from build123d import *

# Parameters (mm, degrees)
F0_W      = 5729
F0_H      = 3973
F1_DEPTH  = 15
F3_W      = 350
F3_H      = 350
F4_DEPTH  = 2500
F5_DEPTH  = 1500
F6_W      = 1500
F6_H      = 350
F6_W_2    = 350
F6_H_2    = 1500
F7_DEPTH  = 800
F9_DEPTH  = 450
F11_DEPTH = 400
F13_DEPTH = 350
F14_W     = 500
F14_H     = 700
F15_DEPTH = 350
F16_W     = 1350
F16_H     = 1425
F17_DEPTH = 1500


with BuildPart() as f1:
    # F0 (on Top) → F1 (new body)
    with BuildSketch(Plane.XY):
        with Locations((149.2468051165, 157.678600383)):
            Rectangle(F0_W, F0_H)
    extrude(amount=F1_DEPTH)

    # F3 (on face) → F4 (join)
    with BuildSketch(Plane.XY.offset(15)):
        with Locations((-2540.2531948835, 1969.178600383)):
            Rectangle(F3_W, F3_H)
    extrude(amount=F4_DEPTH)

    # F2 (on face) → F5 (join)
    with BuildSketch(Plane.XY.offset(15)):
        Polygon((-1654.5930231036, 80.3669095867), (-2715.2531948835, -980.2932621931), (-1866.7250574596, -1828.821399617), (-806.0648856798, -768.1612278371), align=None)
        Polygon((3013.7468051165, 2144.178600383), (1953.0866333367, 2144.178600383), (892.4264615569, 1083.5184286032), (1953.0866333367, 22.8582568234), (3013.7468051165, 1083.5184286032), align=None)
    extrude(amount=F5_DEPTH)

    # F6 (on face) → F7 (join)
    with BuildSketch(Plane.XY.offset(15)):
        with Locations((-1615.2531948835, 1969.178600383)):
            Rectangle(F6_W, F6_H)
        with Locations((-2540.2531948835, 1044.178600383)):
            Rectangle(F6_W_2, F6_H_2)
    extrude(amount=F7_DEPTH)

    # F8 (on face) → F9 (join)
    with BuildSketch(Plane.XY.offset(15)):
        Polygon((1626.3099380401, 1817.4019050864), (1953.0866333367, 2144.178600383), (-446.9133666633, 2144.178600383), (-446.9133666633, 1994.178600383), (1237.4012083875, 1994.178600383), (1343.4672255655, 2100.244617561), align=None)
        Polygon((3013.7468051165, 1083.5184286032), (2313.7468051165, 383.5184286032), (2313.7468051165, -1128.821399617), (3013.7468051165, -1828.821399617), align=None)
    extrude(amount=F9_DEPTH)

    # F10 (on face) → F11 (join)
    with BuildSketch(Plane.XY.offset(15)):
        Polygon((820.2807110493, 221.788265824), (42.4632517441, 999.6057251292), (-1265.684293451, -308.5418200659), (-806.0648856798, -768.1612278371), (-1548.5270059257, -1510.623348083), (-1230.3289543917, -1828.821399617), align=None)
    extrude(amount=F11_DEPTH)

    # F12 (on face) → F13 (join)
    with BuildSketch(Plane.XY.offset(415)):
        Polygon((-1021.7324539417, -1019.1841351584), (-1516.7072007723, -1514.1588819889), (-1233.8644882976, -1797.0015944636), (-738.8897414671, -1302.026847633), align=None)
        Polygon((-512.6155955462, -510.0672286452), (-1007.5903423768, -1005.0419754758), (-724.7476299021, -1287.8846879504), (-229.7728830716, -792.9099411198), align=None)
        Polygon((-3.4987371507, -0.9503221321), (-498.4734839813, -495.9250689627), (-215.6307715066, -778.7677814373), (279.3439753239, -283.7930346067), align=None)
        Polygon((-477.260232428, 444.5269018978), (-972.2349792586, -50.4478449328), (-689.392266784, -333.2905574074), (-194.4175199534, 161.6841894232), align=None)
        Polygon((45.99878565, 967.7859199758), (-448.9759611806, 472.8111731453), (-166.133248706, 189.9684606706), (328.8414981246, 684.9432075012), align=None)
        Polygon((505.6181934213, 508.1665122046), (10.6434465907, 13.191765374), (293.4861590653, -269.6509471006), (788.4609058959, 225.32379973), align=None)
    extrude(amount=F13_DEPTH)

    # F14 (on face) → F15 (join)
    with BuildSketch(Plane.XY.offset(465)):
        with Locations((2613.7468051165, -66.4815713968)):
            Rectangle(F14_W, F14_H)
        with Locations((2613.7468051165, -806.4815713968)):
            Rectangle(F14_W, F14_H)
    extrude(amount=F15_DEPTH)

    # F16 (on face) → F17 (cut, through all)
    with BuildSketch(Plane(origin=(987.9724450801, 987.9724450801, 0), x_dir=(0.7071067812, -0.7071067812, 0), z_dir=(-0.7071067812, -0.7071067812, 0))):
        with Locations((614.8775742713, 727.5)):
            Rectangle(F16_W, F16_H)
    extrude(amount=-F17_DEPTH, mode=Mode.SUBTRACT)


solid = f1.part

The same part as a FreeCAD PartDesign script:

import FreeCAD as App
import Part
import Sketcher
Q = App.Units.Quantity


def add_polygon(sketch, points):
    """Adds a closed chain of lines whose ends are joined by coincident constraints."""
    first, n = sketch.GeometryCount, len(points)
    for a, b in zip(points, points[1:] + points[:1]):
        sketch.addGeometry(Part.LineSegment(App.Vector(*a, 0), App.Vector(*b, 0)), False)
    for i in range(n):
        sketch.addConstraint(Sketcher.Constraint("Coincident", first + i, 2, first + (i + 1) % n, 1))

doc = App.newDocument("Part")
body = doc.addObject("PartDesign::Body", "Body")

# Sketch on XY plane
sketch1 = body.newObject("Sketcher::SketchObject", "Sketch")
sketch1.AttachmentSupport = (doc.getObject("XY_Plane"), [""])
sketch1.MapMode = "FlatFace"
add_polygon(sketch1, [(-2715, 2144), (-2715, -1829), (3014, -1829), (3014, 2144)])  # lines 0-3
sketch1.addConstraint(Sketcher.Constraint("Vertical", 0))
sketch1.addConstraint(Sketcher.Constraint("Horizontal", 1))
sketch1.addConstraint(Sketcher.Constraint("Vertical", 2))
sketch1.addConstraint(Sketcher.Constraint("Horizontal", 3))
sketch1.addConstraint(Sketcher.Constraint("DistanceX", 1, 1, 1, 2, Q("5729 mm")))
sketch1.addConstraint(Sketcher.Constraint("DistanceY", 0, 2, 0, 1, Q("3973 mm")))
sketch1.addConstraint(Sketcher.Constraint("DistanceY", 0, 2, -1, 1, Q("1828.8214 mm")))
sketch1.addConstraint(Sketcher.Constraint("DistanceX", 0, 2, -1, 1, Q("2715.253195 mm")))
pad1 = body.newObject("PartDesign::Pad", "Pad")
pad1.Profile = sketch1
pad1.Length = 15

# Sketch on XY plane
sketch2 = body.newObject("Sketcher::SketchObject", "Sketch001")
sketch2.AttachmentSupport = (doc.getObject("XY_Plane"), [""])
sketch2.MapMode = "FlatFace"
sketch2.AttachmentOffset = App.Placement(App.Vector(0, 0, 15), App.Rotation())
add_polygon(sketch2, [(-2715, 2144), (-2715, 1794), (-2365, 1794), (-2365, 2144)])  # lines 0-3
sketch2.addConstraint(Sketcher.Constraint("Vertical", 0))
sketch2.addConstraint(Sketcher.Constraint("Horizontal", 1))
sketch2.addConstraint(Sketcher.Constraint("Vertical", 2))
sketch2.addConstraint(Sketcher.Constraint("Horizontal", 3))
sketch2.addConstraint(Sketcher.Constraint("Equal", 3, 0))
sketch2.addConstraint(Sketcher.Constraint("DistanceX", 1, 1, 1, 2, Q("350 mm")))
sketch2.addConstraint(Sketcher.Constraint("DistanceY", -1, 1, 0, 2, Q("1794.1786 mm")))
sketch2.addConstraint(Sketcher.Constraint("DistanceX", 0, 2, -1, 1, Q("2715.253195 mm")))
pad2 = body.newObject("PartDesign::Pad", "Pad001")
pad2.Profile = sketch2
pad2.Length = 2500

# Sketch on XY plane
sketch3 = body.newObject("Sketcher::SketchObject", "Sketch002")
sketch3.AttachmentSupport = (doc.getObject("XY_Plane"), [""])
sketch3.MapMode = "FlatFace"
sketch3.AttachmentOffset = App.Placement(App.Vector(0, 0, 15), App.Rotation())
add_polygon(sketch3, [(-1655, 80), (-2715, -980), (-1867, -1829), (-806, -768)])  # lines 0-3
add_polygon(sketch3, [(3014, 2144), (1953, 2144), (892, 1084), (1953, 23), (3014, 1084)])  # lines 4-8
sketch3.addConstraint(Sketcher.Constraint("Horizontal", 4))
sketch3.addConstraint(Sketcher.Constraint("Vertical", 8))
sketch3.addConstraint(Sketcher.Constraint("Perpendicular", 0, 1))
sketch3.addConstraint(Sketcher.Constraint("Perpendicular", 1, 2))
sketch3.addConstraint(Sketcher.Constraint("Perpendicular", 2, 3))
sketch3.addConstraint(Sketcher.Constraint("Perpendicular", 3, 5))
sketch3.addConstraint(Sketcher.Constraint("Perpendicular", 5, 6))
sketch3.addConstraint(Sketcher.Constraint("Perpendicular", 6, 7))
sketch3.addConstraint(Sketcher.Constraint("Horizontal", 5, 2, 7, 2))
sketch3.addConstraint(Sketcher.Constraint("Vertical", 4, 2, 6, 2))
sketch3.addConstraint(Sketcher.Constraint("Equal", 4, 8))
sketch3.addConstraint(Sketcher.Constraint("Equal", 2, 5))
sketch3.addConstraint(Sketcher.Constraint("Distance", 0, Q("1500 mm")))
sketch3.addConstraint(Sketcher.Constraint("Distance", 1, Q("1200 mm")))
sketch3.addConstraint(Sketcher.Constraint("DistanceY", 1, 2, 4, 2, Q("3973 mm")))
sketch3.addConstraint(Sketcher.Constraint("DistanceY", 1, 2, -1, 1, Q("1828.8214 mm")))
sketch3.addConstraint(Sketcher.Constraint("DistanceX", -1, 1, 5, 2, Q("892.426462 mm")))
sketch3.addConstraint(Sketcher.Constraint("DistanceX", 2, 2, 4, 2, Q("2759.151519 mm")))
pad3 = body.newObject("PartDesign::Pad", "Pad002")
pad3.Profile = sketch3
pad3.Length = 1500

# Sketch on XY plane
sketch4 = body.newObject("Sketcher::SketchObject", "Sketch003")
sketch4.AttachmentSupport = (doc.getObject("XY_Plane"), [""])
sketch4.MapMode = "FlatFace"
sketch4.AttachmentOffset = App.Placement(App.Vector(0, 0, 15), App.Rotation())
add_polygon(sketch4, [(-2365, 2144), (-2365, 1794), (-865, 1794), (-865, 2144)])  # lines 0-3
add_polygon(sketch4, [(-2715, 1794), (-2715, 294), (-2365, 294), (-2365, 1794)])  # lines 4-7
sketch4.addConstraint(Sketcher.Constraint("Vertical", 0))
sketch4.addConstraint(Sketcher.Constraint("Horizontal", 1))
sketch4.addConstraint(Sketcher.Constraint("Vertical", 2))
sketch4.addConstraint(Sketcher.Constraint("Horizontal", 3))
sketch4.addConstraint(Sketcher.Constraint("Vertical", 4))
sketch4.addConstraint(Sketcher.Constraint("Horizontal", 5))
sketch4.addConstraint(Sketcher.Constraint("Vertical", 6))
sketch4.addConstraint(Sketcher.Constraint("Horizontal", 7))
sketch4.addConstraint(Sketcher.Constraint("Coincident", 6, 2, 0, 2))
sketch4.addConstraint(Sketcher.Constraint("Equal", 7, 0))
sketch4.addConstraint(Sketcher.Constraint("Equal", 3, 4))
sketch4.addConstraint(Sketcher.Constraint("DistanceX", 1, 1, 1, 2, Q("1500 mm")))
sketch4.addConstraint(Sketcher.Constraint("DistanceX", 5, 1, 5, 2, Q("350 mm")))
sketch4.addConstraint(Sketcher.Constraint("DistanceY", -1, 1, 0, 2, Q("1794.1786 mm")))
sketch4.addConstraint(Sketcher.Constraint("DistanceX", 0, 2, -1, 1, Q("2365.253195 mm")))
pad4 = body.newObject("PartDesign::Pad", "Pad003")
pad4.Profile = sketch4
pad4.Length = 800

# Sketch on XY plane
sketch5 = body.newObject("Sketcher::SketchObject", "Sketch004")
sketch5.AttachmentSupport = (doc.getObject("XY_Plane"), [""])
sketch5.MapMode = "FlatFace"
sketch5.AttachmentOffset = App.Placement(App.Vector(0, 0, 15), App.Rotation())
add_polygon(sketch5, [(1626, 1817), (1953, 2144), (-447, 2144), (-447, 1994), (1237, 1994), (1343, 2100)])  # lines 0-5
add_polygon(sketch5, [(3014, 1084), (2314, 384), (2314, -1129), (3014, -1829)])  # lines 6-9
sketch5.addConstraint(Sketcher.Constraint("Horizontal", 1))
sketch5.addConstraint(Sketcher.Constraint("Vertical", 2))
sketch5.addConstraint(Sketcher.Constraint("Horizontal", 3))
sketch5.addConstraint(Sketcher.Constraint("Vertical", 7))
sketch5.addConstraint(Sketcher.Constraint("Vertical", 9))
sketch5.addConstraint(Sketcher.Constraint("Parallel", 0, 4))
sketch5.addConstraint(Sketcher.Constraint("Perpendicular", 4, 5))
sketch5.addConstraint(Sketcher.Constraint("Perpendicular", 5, 6))
sketch5.addConstraint(Sketcher.Constraint("Perpendicular", 6, 8))
sketch5.addConstraint(Sketcher.Constraint("Equal", 6, 8))
sketch5.addConstraint(Sketcher.Constraint("DistanceX", 1, 2, 1, 1, Q("2400 mm")))
sketch5.addConstraint(Sketcher.Constraint("DistanceY", 2, 2, 2, 1, Q("150 mm")))
sketch5.addConstraint(Sketcher.Constraint("Distance", 4, Q("150 mm")))
sketch5.addConstraint(Sketcher.Constraint("Distance", 5, Q("400 mm")))
sketch5.addConstraint(Sketcher.Constraint("DistanceY", 7, 2, 0, 2, Q("3273 mm")))
sketch5.addConstraint(Sketcher.Constraint("DistanceX", 7, 2, 8, 2, Q("700 mm")))
sketch5.addConstraint(Sketcher.Constraint("DistanceY", 7, 2, 7, 1, Q("1512.339828 mm")))
sketch5.addConstraint(Sketcher.Constraint("DistanceY", -1, 1, 0, 2, Q("2144.1786 mm")))
sketch5.addConstraint(Sketcher.Constraint("DistanceX", -1, 1, 3, 2, Q("1237.401208 mm")))
sketch5.addConstraint(Sketcher.Constraint("DistanceX", 0, 2, 6, 2, Q("360.660172 mm")))
pad5 = body.newObject("PartDesign::Pad", "Pad004")
pad5.Profile = sketch5
pad5.Length = 450

# Sketch on XY plane
sketch6 = body.newObject("Sketcher::SketchObject", "Sketch005")
sketch6.AttachmentSupport = (doc.getObject("XY_Plane"), [""])
sketch6.MapMode = "FlatFace"
sketch6.AttachmentOffset = App.Placement(App.Vector(0, 0, 15), App.Rotation())
add_polygon(sketch6, [(820, 222), (42, 1000), (-1266, -309), (-806, -768), (-1549, -1511), (-1230, -1829)])  # lines 0-5
sketch6.addConstraint(Sketcher.Constraint("Perpendicular", 0, 1))
sketch6.addConstraint(Sketcher.Constraint("Perpendicular", 1, 2))
sketch6.addConstraint(Sketcher.Constraint("Perpendicular", 2, 3))
sketch6.addConstraint(Sketcher.Constraint("Perpendicular", 3, 4))
sketch6.addConstraint(Sketcher.Constraint("Perpendicular", 4, 5))
sketch6.addConstraint(Sketcher.Constraint("Angle", 0, Q("135 deg")))
sketch6.addConstraint(Sketcher.Constraint("Distance", 0, Q("1100 mm")))
sketch6.addConstraint(Sketcher.Constraint("Distance", 1, Q("1850 mm")))
sketch6.addConstraint(Sketcher.Constraint("Distance", 2, Q("650 mm")))
sketch6.addConstraint(Sketcher.Constraint("Distance", 3, Q("1050 mm")))
sketch6.addConstraint(Sketcher.Constraint("DistanceY", 4, 2, -1, 1, Q("1828.8214 mm")))
sketch6.addConstraint(Sketcher.Constraint("DistanceX", -1, 1, 0, 2, Q("42.463252 mm")))
pad6 = body.newObject("PartDesign::Pad", "Pad005")
pad6.Profile = sketch6
pad6.Length = 400

# Sketch on XY plane
sketch7 = body.newObject("Sketcher::SketchObject", "Sketch006")
sketch7.AttachmentSupport = (doc.getObject("XY_Plane"), [""])
sketch7.MapMode = "FlatFace"
sketch7.AttachmentOffset = App.Placement(App.Vector(0, 0, 415), App.Rotation())
add_polygon(sketch7, [(-1022, -1019), (-1517, -1514), (-1234, -1797), (-739, -1302)])  # lines 0-3
add_polygon(sketch7, [(-513, -510), (-1008, -1005), (-725, -1288), (-230, -793)])  # lines 4-7
add_polygon(sketch7, [(-3, -1), (-498, -496), (-216, -779), (279, -284)])  # lines 8-11
add_polygon(sketch7, [(-477, 445), (-972, -50), (-689, -333), (-194, 162)])  # lines 12-15
add_polygon(sketch7, [(46, 968), (-449, 473), (-166, 190), (329, 685)])  # lines 16-19
add_polygon(sketch7, [(506, 508), (11, 13), (293, -270), (788, 225)])  # lines 20-23
sketch7.addConstraint(Sketcher.Constraint("Perpendicular", 0, 1))
sketch7.addConstraint(Sketcher.Constraint("Perpendicular", 1, 2))
sketch7.addConstraint(Sketcher.Constraint("Perpendicular", 2, 3))
sketch7.addConstraint(Sketcher.Constraint("Perpendicular", 3, 4))
sketch7.addConstraint(Sketcher.Constraint("Perpendicular", 4, 5))
sketch7.addConstraint(Sketcher.Constraint("Perpendicular", 5, 6))
sketch7.addConstraint(Sketcher.Constraint("Perpendicular", 6, 7))
sketch7.addConstraint(Sketcher.Constraint("Perpendicular", 7, 8))
sketch7.addConstraint(Sketcher.Constraint("Perpendicular", 8, 9))
sketch7.addConstraint(Sketcher.Constraint("Perpendicular", 9, 10))
sketch7.addConstraint(Sketcher.Constraint("Perpendicular", 10, 11))
sketch7.addConstraint(Sketcher.Constraint("Perpendicular", 11, 12))
sketch7.addConstraint(Sketcher.Constraint("Perpendicular", 12, 13))
sketch7.addConstraint(Sketcher.Constraint("Perpendicular", 13, 14))
sketch7.addConstraint(Sketcher.Constraint("Perpendicular", 14, 15))
sketch7.addConstraint(Sketcher.Constraint("Perpendicular", 15, 16))
sketch7.addConstraint(Sketcher.Constraint("Perpendicular", 16, 17))
sketch7.addConstraint(Sketcher.Constraint("Perpendicular", 17, 18))
sketch7.addConstraint(Sketcher.Constraint("Perpendicular", 18, 19))
sketch7.addConstraint(Sketcher.Constraint("Perpendicular", 19, 20))
sketch7.addConstraint(Sketcher.Constraint("Perpendicular", 20, 21))
sketch7.addConstraint(Sketcher.Constraint("Perpendicular", 21, 22))
sketch7.addConstraint(Sketcher.Constraint("Perpendicular", 22, 23))
sketch7.addConstraint(Sketcher.Constraint("Equal", 2, 4))
sketch7.addConstraint(Sketcher.Constraint("Equal", 3, 5))
sketch7.addConstraint(Sketcher.Constraint("Equal", 6, 8))
sketch7.addConstraint(Sketcher.Constraint("Equal", 7, 9))
sketch7.addConstraint(Sketcher.Constraint("Equal", 10, 12))
sketch7.addConstraint(Sketcher.Constraint("Equal", 11, 13))
sketch7.addConstraint(Sketcher.Constraint("Equal", 14, 16))
sketch7.addConstraint(Sketcher.Constraint("Equal", 15, 17))
sketch7.addConstraint(Sketcher.Constraint("Equal", 18, 20))
sketch7.addConstraint(Sketcher.Constraint("Equal", 19, 21))
sketch7.addConstraint(Sketcher.Constraint("Angle", 0, Q("-135 deg")))
sketch7.addConstraint(Sketcher.Constraint("Distance", 0, Q("700 mm")))
sketch7.addConstraint(Sketcher.Constraint("Distance", 1, Q("400 mm")))
sketch7.addConstraint(Sketcher.Constraint("DistanceX", 0, 2, -1, 1, Q("1516.707201 mm")))
sketch7.addConstraint(Sketcher.Constraint("DistanceY", -1, 1, 15, 2, Q("444.526902 mm")))
sketch7.addConstraint(Sketcher.Constraint("DistanceX", -1, 1, 18, 2, Q("328.841498 mm")))
sketch7.addConstraint(Sketcher.Constraint("DistanceY", -1, 1, 22, 2, Q("225.3238 mm")))
sketch7.addConstraint(Sketcher.Constraint("DistanceX", 4, 2, 2, 2, Q("268.700601 mm")))
sketch7.addConstraint(Sketcher.Constraint("DistanceX", 8, 2, 6, 2, Q("268.700601 mm")))
sketch7.addConstraint(Sketcher.Constraint("DistanceY", 10, 2, 20, 2, Q("296.9848 mm")))
sketch7.addConstraint(Sketcher.Constraint("DistanceY", 0, 2, -1, 1, Q("1514.158882 mm")))
sketch7.addConstraint(Sketcher.Constraint("DistanceY", 6, 2, -1, 1, Q("792.909941 mm")))
sketch7.addConstraint(Sketcher.Constraint("DistanceX", 12, 2, -1, 1, Q("972.234979 mm")))
sketch7.addConstraint(Sketcher.Constraint("DistanceY", -1, 1, 17, 2, Q("189.968461 mm")))
sketch7.addConstraint(Sketcher.Constraint("DistanceX", -1, 1, 21, 2, Q("293.486159 mm")))
pad7 = body.newObject("PartDesign::Pad", "Pad006")
pad7.Profile = sketch7
pad7.Length = 350

# Sketch on XY plane
sketch8 = body.newObject("Sketcher::SketchObject", "Sketch007")
sketch8.AttachmentSupport = (doc.getObject("XY_Plane"), [""])
sketch8.MapMode = "FlatFace"
sketch8.AttachmentOffset = App.Placement(App.Vector(0, 0, 465), App.Rotation())
add_polygon(sketch8, [(2364, 284), (2364, -416), (2864, -416), (2864, 284)])  # lines 0-3
add_polygon(sketch8, [(2364, -456), (2364, -1156), (2864, -1156), (2864, -456)])  # lines 4-7
sketch8.addConstraint(Sketcher.Constraint("Vertical", 0))
sketch8.addConstraint(Sketcher.Constraint("Horizontal", 1))
sketch8.addConstraint(Sketcher.Constraint("Vertical", 2))
sketch8.addConstraint(Sketcher.Constraint("Horizontal", 3))
sketch8.addConstraint(Sketcher.Constraint("Vertical", 4))
sketch8.addConstraint(Sketcher.Constraint("Horizontal", 5))
sketch8.addConstraint(Sketcher.Constraint("Vertical", 6))
sketch8.addConstraint(Sketcher.Constraint("Horizontal", 7))
sketch8.addConstraint(Sketcher.Constraint("Vertical", 3, 2, 4, 2))
sketch8.addConstraint(Sketcher.Constraint("Vertical", 2, 2, 5, 2))
sketch8.addConstraint(Sketcher.Constraint("Equal", 2, 4))
sketch8.addConstraint(Sketcher.Constraint("DistanceX", 1, 1, 1, 2, Q("500 mm")))
sketch8.addConstraint(Sketcher.Constraint("DistanceY", 0, 2, 0, 1, Q("700 mm")))
sketch8.addConstraint(Sketcher.Constraint("DistanceY", 4, 2, 0, 2, Q("740 mm")))
sketch8.addConstraint(Sketcher.Constraint("DistanceY", 0, 2, -1, 1, Q("416.481571 mm")))
sketch8.addConstraint(Sketcher.Constraint("DistanceX", -1, 1, 0, 2, Q("2363.746805 mm")))
pad8 = body.newObject("PartDesign::Pad", "Pad007")
pad8.Profile = sketch8
pad8.Length = 350

# Sketch on an angled plane
sketch9 = body.newObject("Sketcher::SketchObject", "Sketch008")
sketch9.Placement = App.Placement(App.Vector(987.972445, 987.972445, 0), App.Rotation(App.Vector(0.707106781, -0.707106781, 0), App.Vector(0, 0, 0.999999999), App.Vector(-0.707106781, -0.707106781, 0), "ZXY"))
add_polygon(sketch9, [(-60, 1440), (-60, 15), (1290, 15), (1290, 1440)])  # lines 0-3
sketch9.addConstraint(Sketcher.Constraint("Vertical", 0))
sketch9.addConstraint(Sketcher.Constraint("Horizontal", 1))
sketch9.addConstraint(Sketcher.Constraint("Vertical", 2))
sketch9.addConstraint(Sketcher.Constraint("Horizontal", 3))
sketch9.addConstraint(Sketcher.Constraint("DistanceX", 1, 1, 1, 2, Q("1349.999999 mm")))
sketch9.addConstraint(Sketcher.Constraint("DistanceY", 0, 2, 0, 1, Q("1424.999998 mm")))
sketch9.addConstraint(Sketcher.Constraint("DistanceY", -1, 1, 0, 2, Q("15 mm")))
sketch9.addConstraint(Sketcher.Constraint("DistanceX", 0, 2, -1, 1, Q("60.122426 mm")))
pocket1 = body.newObject("PartDesign::Pocket", "Pocket")
pocket1.Profile = sketch9
pocket1.Length = 1500

doc.recompute()
